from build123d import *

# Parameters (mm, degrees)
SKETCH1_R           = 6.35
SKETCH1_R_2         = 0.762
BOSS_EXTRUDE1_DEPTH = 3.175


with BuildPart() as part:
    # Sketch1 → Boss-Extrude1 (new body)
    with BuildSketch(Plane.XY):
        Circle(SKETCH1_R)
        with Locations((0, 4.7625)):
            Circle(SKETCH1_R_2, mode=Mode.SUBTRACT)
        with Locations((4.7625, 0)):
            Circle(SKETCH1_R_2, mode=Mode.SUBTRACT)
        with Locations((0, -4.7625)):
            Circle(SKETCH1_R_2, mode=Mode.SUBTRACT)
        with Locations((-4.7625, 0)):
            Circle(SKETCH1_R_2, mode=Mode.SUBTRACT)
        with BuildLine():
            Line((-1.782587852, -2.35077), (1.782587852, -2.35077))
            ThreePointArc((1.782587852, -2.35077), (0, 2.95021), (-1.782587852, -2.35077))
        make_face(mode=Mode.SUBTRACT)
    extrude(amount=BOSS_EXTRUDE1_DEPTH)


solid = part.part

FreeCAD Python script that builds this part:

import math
import FreeCAD as App
import Part
import Sketcher
from FreeCAD import Vector
Q = App.Units.Quantity

doc = App.newDocument("Part")
body = doc.addObject("PartDesign::Body", "Body")

sketch1 = doc.addObject("Sketcher::SketchObject", "Sketch")
body.addObject(sketch1)
sketch1.AttachmentSupport = (doc.XY_Plane, [""])
sketch1.MapMode = "FlatFace"
sketch1.addGeometry(Part.Circle(Vector(0, 0, 0), Vector(0, 0, 1), 6.3), False)
sketch1.addGeometry(Part.Circle(Vector(0, -4.8, 0), Vector(0, 0, 1), 0.8), False)
sketch1.addGeometry(Part.Circle(Vector(-4.8, 0, 0), Vector(0, 0, 1), 0.8), False)
sketch1.addGeometry(Part.LineSegment(Vector(1.8, -2.4, 0), Vector(-1.8, -2.4, 0)), False)
sketch1.addGeometry(Part.ArcOfCircle(Part.Circle(Vector(0, 0, 0), Vector(0, 0, 1), 3), math.radians(-53), math.radians(233)), False)
sketch1.addGeometry(Part.Circle(Vector(0, 4.8, 0), Vector(0, 0, 1), 0.8), False)
sketch1.addGeometry(Part.Circle(Vector(4.8, 0, 0), Vector(0, 0, 1), 0.8), False)
sketch1.addConstraint(Sketcher.Constraint("Coincident", 3, 1, 4, 1))
sketch1.addConstraint(Sketcher.Constraint("Coincident", 4, 2, 3, 2))
sketch1.addConstraint(Sketcher.Constraint("Horizontal", 3))
sketch1.addConstraint(Sketcher.Constraint("Coincident", 0, 3, -1, 1))
sketch1.addConstraint(Sketcher.Constraint("Coincident", 4, 3, -1, 1))
sketch1.addConstraint(Sketcher.Constraint("Equal", 1, 2))
sketch1.addConstraint(Sketcher.Constraint("Equal", 2, 5))
sketch1.addConstraint(Sketcher.Constraint("Equal", 5, 6))
sketch1.addConstraint(Sketcher.Constraint("Symmetric", 1, 3, 5, 3, -1, 1))
sketch1.addConstraint(Sketcher.Constraint("Symmetric", 2, 3, 6, 3, -1, 1))
sketch1.addConstraint(Sketcher.Constraint("PointOnObject", 1, 3, -2))
sketch1.addConstraint(Sketcher.Constraint("PointOnObject", 2, 3, -1))
sketch1.addConstraint(Sketcher.Constraint("Diameter", 0, Q("0.5 in")))
sketch1.addConstraint(Sketcher.Constraint("Diameter", 1, Q("0.06 in")))
sketch1.addConstraint(Sketcher.Constraint("DistanceY", 1, 3, -1, 1, Q("0.1875 in")))
sketch1.addConstraint(Sketcher.Constraint("DistanceX", 2, 3, -1, 1, Q("0.1875 in")))
sketch1.addConstraint(Sketcher.Constraint("Radius", 4, Q("2.95021 mm")))
sketch1.addConstraint(Sketcher.Constraint("DistanceX", 3, 2, 3, 1, Q("3.565176 mm")))
pad1 = doc.addObject("PartDesign::Pad", "Pad")
body.addObject(pad1)
pad1.Profile = sketch1
pad1.Length = Q("0.125 in")

doc.recompute()
